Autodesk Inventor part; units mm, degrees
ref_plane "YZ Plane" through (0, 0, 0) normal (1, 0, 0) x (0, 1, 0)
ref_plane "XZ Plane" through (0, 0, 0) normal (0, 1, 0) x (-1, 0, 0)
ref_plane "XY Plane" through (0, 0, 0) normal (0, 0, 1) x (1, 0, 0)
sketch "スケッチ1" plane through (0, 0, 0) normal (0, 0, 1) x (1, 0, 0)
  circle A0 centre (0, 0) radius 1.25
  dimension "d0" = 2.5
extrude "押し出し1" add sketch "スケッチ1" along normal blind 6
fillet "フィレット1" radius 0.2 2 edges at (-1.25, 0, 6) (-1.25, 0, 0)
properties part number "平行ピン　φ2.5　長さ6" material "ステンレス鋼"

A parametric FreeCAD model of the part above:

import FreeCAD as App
import Part
import Sketcher

V = App.Vector


def edges_at(feature, points):
    """Names of the edges that pass closest to the given points."""
    edges = feature.Shape.Edges
    near = lambda p: min(range(len(edges)), key=lambda i: edges[i].distToShape(Part.Vertex(*p))[0])
    return sorted({f"Edge{near(p) + 1}" for p in points})

doc = App.newDocument("Part")
body = doc.addObject("PartDesign::Body", "Body")

# Sketch on XY plane
sketch1 = body.newObject("Sketcher::SketchObject", "Sketch")
sketch1.AttachmentSupport = (doc.getObject("XY_Plane"), [""])
sketch1.MapMode = "FlatFace"
sketch1.addGeometry(Part.Circle(V(0, 0, 0), V(0, 0, 1), 1.25), False)
sketch1.addConstraint(Sketcher.Constraint("Coincident", 0, 3, -1, 1))
sketch1.addConstraint(Sketcher.Constraint("Diameter", 0, 2.5))
pad1 = body.newObject("PartDesign::Pad", "Pad")
pad1.Profile = sketch1
pad1.Length = 6
doc.recompute()

fillet = body.newObject("PartDesign::Fillet", "Fillet")
fillet.Base = (pad1, edges_at(pad1, [(-1.25, 0, 6), (-1.25, 0, 0)]))
fillet.Radius = 0.2

doc.recompute()
